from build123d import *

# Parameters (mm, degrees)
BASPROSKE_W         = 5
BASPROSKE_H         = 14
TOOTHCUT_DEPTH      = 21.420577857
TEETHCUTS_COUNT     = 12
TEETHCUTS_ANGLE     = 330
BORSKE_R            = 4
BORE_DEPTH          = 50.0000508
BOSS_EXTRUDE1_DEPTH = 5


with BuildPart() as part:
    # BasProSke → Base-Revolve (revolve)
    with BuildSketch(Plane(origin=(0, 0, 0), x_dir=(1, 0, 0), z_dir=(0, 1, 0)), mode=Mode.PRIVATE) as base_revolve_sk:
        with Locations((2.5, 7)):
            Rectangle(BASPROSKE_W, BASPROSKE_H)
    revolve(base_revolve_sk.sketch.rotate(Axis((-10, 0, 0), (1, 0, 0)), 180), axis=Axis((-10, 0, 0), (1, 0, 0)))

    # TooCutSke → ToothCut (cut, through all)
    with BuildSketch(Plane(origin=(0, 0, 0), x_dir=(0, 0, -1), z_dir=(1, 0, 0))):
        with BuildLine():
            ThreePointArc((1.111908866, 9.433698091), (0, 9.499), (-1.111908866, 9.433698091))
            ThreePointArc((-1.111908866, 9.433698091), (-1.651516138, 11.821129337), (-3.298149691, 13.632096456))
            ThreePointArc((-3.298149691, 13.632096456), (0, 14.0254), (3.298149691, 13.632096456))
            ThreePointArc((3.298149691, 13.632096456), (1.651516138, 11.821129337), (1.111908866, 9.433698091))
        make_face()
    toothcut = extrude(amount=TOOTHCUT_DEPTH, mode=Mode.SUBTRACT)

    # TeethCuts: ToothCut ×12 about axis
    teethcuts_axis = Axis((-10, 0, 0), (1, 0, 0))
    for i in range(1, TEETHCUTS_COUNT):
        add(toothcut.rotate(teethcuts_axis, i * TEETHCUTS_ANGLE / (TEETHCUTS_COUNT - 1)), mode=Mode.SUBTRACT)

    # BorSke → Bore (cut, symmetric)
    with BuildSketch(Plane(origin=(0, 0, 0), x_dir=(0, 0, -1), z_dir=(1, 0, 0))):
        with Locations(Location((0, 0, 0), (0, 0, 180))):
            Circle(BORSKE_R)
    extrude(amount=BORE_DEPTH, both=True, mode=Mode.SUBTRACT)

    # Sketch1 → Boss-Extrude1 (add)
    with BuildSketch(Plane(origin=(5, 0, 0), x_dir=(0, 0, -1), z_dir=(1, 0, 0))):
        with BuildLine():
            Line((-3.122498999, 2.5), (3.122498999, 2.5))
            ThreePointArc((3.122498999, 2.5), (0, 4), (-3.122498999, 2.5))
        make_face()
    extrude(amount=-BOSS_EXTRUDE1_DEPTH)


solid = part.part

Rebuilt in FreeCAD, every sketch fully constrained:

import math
import FreeCAD as App
import Part
import Sketcher
from FreeCAD import Vector


def add_polygon(sketch, points):
    """Adds a closed chain of lines whose ends are joined by coincident constraints."""
    first, n = sketch.GeometryCount, len(points)
    for a, b in zip(points, points[1:] + points[:1]):
        sketch.addGeometry(Part.LineSegment(App.Vector(*a, 0), App.Vector(*b, 0)), False)
    for i in range(n):
        sketch.addConstraint(Sketcher.Constraint("Coincident", first + i, 2, first + (i + 1) % n, 1))

doc = App.newDocument("Part")
body = doc.addObject("PartDesign::Body", "Body")

sketch1 = body.newObject("Sketcher::SketchObject", "Sketch")
sketch1.AttachmentSupport = (doc.getObject("XZ_Plane"), [""])
sketch1.MapMode = "FlatFace"
add_polygon(sketch1, [(0, -14), (0, 0), (5, 0), (5, -14)])
sketch1.addConstraint([
    Sketcher.Constraint("Vertical", 0),
    Sketcher.Constraint("Horizontal", 1),
    Sketcher.Constraint("Vertical", 2),
    Sketcher.Constraint("Horizontal", 3),
    Sketcher.Constraint("Coincident", 0, 2, -1, 1),
    Sketcher.Constraint("DistanceX", 1, 1, 1, 2, 5.0),
    Sketcher.Constraint("DistanceY", 0, 1, 0, 2, 14.0),
])
revolution = body.newObject("PartDesign::Revolution", "Revolution")
revolution.Profile = sketch1
revolution.ReferenceAxis = (sketch1, ["H_Axis"])
revolution.Angle = 360

sketch2 = body.newObject("Sketcher::SketchObject", "Sketch001")
sketch2.AttachmentSupport = (doc.getObject("YZ_Plane"), [""])
sketch2.MapMode = "FlatFace"
sketch2.addGeometry([
    Part.ArcOfCircle(Part.Circle(Vector(0, 0, 0), Vector(0, 0, 1), 9.5), math.radians(-6.72), math.radians(6.72)),
    Part.ArcOfCircle(Part.Circle(Vector(9.6, -5.9, 0), Vector(0, 0, 1), 4.8), math.radians(33), math.radians(92)),
    Part.ArcOfCircle(Part.Circle(Vector(0, 0, 0), Vector(0, 0, 1), 14), math.radians(-14), math.radians(14)),
    Part.ArcOfCircle(Part.Circle(Vector(9.6, 5.9, 0), Vector(0, 0, 1), 4.8), math.radians(-92), math.radians(-33)),
], False)
sketch2.addConstraint([
    Sketcher.Constraint("Coincident", 0, 1, 1, 2),
    Sketcher.Constraint("Coincident", 1, 1, 2, 1),
    Sketcher.Constraint("Coincident", 2, 2, 3, 2),
    Sketcher.Constraint("Coincident", 3, 1, 0, 2),
    Sketcher.Constraint("Coincident", 0, 3, -1, 1),
    Sketcher.Constraint("Coincident", 2, 3, -1, 1),
    Sketcher.Constraint("Equal", 1, 3),
    Sketcher.Constraint("Symmetric", 1, 3, 3, 3, -1),
    Sketcher.Constraint("Radius", 1, 4.8),
    Sketcher.Constraint("Radius", 0, 9.499),
    Sketcher.Constraint("Radius", 2, 14.0254),
    Sketcher.Constraint("DistanceX", -1, 1, 0, 1, 9.433698),
    Sketcher.Constraint("DistanceX", 0, 1, 1, 1, 4.198398),
])
pocket1 = body.newObject("PartDesign::Pocket", "Pocket")
pocket1.Profile = sketch2
pocket1.Type = "ThroughAll"
pocket1.Reversed = True
doc.recompute()

polarpattern = body.newObject("PartDesign::PolarPattern", "PolarPattern")
polarpattern.Originals = [pocket1]
polarpattern.Axis = (doc.getObject("X_Axis"), [""])
polarpattern.Angle = 360
polarpattern.Occurrences = 12
body.Tip = polarpattern

sketch3 = body.newObject("Sketcher::SketchObject", "Sketch002")
sketch3.AttachmentSupport = (doc.getObject("YZ_Plane"), [""])
sketch3.MapMode = "FlatFace"
sketch3.addGeometry(Part.Circle(Vector(0, 0, 0), Vector(0, 0, 1), 4), False)
sketch3.addConstraint([
    Sketcher.Constraint("Coincident", 0, 3, -1, 1),
    Sketcher.Constraint("Diameter", 0, 8.0),
])
pocket2 = body.newObject("PartDesign::Pocket", "Pocket001")
pocket2.Profile = sketch3
pocket2.Length = 100.000102
pocket2.Midplane = True

sketch4 = body.newObject("Sketcher::SketchObject", "Sketch003")
sketch4.AttachmentSupport = (doc.getObject("YZ_Plane"), [""])
sketch4.MapMode = "FlatFace"
sketch4.AttachmentOffset = App.Placement(Vector(0, 0, 5), App.Rotation())
sketch4.addGeometry([
    Part.LineSegment(Vector(2.5, 3.1, 0), Vector(2.5, -3.1, 0)),
    Part.ArcOfCircle(Part.Circle(Vector(0, 0, 0), Vector(0, 0, 1), 4), math.radians(-51), math.radians(51)),
], False)
sketch4.addConstraint([
    Sketcher.Constraint("Coincident", 0, 1, 1, 2),
    Sketcher.Constraint("Coincident", 1, 1, 0, 2),
    Sketcher.Constraint("Vertical", 0),
    Sketcher.Constraint("Coincident", 1, 3, -1, 1),
    Sketcher.Constraint("Radius", 1, 4.0),
    Sketcher.Constraint("DistanceX", -1, 1, 0, 1, 2.5),
])
pad1 = body.newObject("PartDesign::Pad", "Pad")
pad1.Profile = sketch4
pad1.Length = 5
pad1.Reversed = True

doc.recompute()
